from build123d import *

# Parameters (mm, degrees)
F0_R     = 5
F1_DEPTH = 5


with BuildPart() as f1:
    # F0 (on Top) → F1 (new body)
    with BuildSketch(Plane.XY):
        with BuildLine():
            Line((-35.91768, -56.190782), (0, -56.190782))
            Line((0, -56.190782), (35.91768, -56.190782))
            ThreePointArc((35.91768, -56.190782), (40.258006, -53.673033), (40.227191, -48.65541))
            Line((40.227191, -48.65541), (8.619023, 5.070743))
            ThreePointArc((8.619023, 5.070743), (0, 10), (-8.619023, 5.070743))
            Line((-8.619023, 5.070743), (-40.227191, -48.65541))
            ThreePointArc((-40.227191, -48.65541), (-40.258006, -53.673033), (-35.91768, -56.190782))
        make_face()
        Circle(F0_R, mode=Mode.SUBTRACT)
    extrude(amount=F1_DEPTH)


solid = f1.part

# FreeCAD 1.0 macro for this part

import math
import FreeCAD as App
import Part
import Sketcher

V = App.Vector
Q = App.Units.Quantity

doc = App.newDocument("Part")
body = doc.addObject("PartDesign::Body", "Body")

# Sketch on XY plane
sketch1 = body.newObject("Sketcher::SketchObject", "Sketch")
sketch1.AttachmentSupport = (doc.getObject("XY_Plane"), [""])
sketch1.MapMode = "FlatFace"
sketch1.addGeometry([
    Part.LineSegment(V(-35.91768, -56.190782, 0), V(35.91768, -56.190782, 0)),  # 0
    Part.ArcOfCircle(Part.Circle(V(35.91768, -51.190782, 0), V(0, 0, 1), 5), math.radians(-90.000002), math.radians(30.46916)),  # 1
    Part.LineSegment(V(40.227191, -48.65541, 0), V(8.619023, 5.070743, 0)),  # 2
    Part.ArcOfCircle(Part.Circle(V(0, 0.000001, 0), V(0, 0, 1), 9.999999), math.radians(30.469143), math.radians(149.530857)),  # 3
    Part.LineSegment(V(-8.619023, 5.070743, 0), V(-40.227191, -48.65541, 0)),  # 4
    Part.ArcOfCircle(Part.Circle(V(-35.91768, -51.190782, 0), V(0, 0, 1), 5), math.radians(149.53084), math.radians(270.000002)),  # 5
    Part.Circle(V(0, 0, 0), V(0, 0, 1), 5),  # 6
], False)
sketch1.addConstraint([
    Sketcher.Constraint("Coincident", 0, 2, 1, 1),
    Sketcher.Constraint("Coincident", 1, 2, 2, 1),
    Sketcher.Constraint("Coincident", 2, 2, 3, 1),
    Sketcher.Constraint("Coincident", 3, 2, 4, 1),
    Sketcher.Constraint("Coincident", 4, 2, 5, 1),
    Sketcher.Constraint("Coincident", 5, 2, 0, 1),
    Sketcher.Constraint("Horizontal", 0),
    Sketcher.Constraint("Coincident", 3, 3, -1, 1),
    Sketcher.Constraint("Coincident", 6, 3, -1, 1),
    Sketcher.Constraint("Diameter", 6, Q("10 mm")),
    Sketcher.Constraint("Radius", 1, Q("5 mm")),
    Sketcher.Constraint("Radius", 3, Q("9.999999 mm")),
    Sketcher.Constraint("Radius", 5, Q("5 mm")),
    Sketcher.Constraint("DistanceX", 0, 1, 0, 2, Q("71.83536 mm")),
    Sketcher.Constraint("DistanceX", -1, 1, 1, 3, Q("35.91768 mm")),
    Sketcher.Constraint("DistanceX", 5, 3, -1, 1, Q("35.91768 mm")),
    Sketcher.Constraint("DistanceX", -1, 1, 0, 2, Q("35.91768 mm")),
    Sketcher.Constraint("DistanceX", -1, 1, 1, 2, Q("40.227191 mm")),
    Sketcher.Constraint("DistanceY", 1, 2, -1, 1, Q("48.65541 mm")),
    Sketcher.Constraint("DistanceX", 4, 2, -1, 1, Q("40.227191 mm")),
    Sketcher.Constraint("DistanceX", 2, 2, 1, 2, Q("31.608168 mm")),
    Sketcher.Constraint("DistanceX", 4, 2, 3, 2, Q("31.608168 mm")),
])
pad1 = body.newObject("PartDesign::Pad", "Pad")
pad1.Profile = sketch1
pad1.Length = 5

doc.recompute()
